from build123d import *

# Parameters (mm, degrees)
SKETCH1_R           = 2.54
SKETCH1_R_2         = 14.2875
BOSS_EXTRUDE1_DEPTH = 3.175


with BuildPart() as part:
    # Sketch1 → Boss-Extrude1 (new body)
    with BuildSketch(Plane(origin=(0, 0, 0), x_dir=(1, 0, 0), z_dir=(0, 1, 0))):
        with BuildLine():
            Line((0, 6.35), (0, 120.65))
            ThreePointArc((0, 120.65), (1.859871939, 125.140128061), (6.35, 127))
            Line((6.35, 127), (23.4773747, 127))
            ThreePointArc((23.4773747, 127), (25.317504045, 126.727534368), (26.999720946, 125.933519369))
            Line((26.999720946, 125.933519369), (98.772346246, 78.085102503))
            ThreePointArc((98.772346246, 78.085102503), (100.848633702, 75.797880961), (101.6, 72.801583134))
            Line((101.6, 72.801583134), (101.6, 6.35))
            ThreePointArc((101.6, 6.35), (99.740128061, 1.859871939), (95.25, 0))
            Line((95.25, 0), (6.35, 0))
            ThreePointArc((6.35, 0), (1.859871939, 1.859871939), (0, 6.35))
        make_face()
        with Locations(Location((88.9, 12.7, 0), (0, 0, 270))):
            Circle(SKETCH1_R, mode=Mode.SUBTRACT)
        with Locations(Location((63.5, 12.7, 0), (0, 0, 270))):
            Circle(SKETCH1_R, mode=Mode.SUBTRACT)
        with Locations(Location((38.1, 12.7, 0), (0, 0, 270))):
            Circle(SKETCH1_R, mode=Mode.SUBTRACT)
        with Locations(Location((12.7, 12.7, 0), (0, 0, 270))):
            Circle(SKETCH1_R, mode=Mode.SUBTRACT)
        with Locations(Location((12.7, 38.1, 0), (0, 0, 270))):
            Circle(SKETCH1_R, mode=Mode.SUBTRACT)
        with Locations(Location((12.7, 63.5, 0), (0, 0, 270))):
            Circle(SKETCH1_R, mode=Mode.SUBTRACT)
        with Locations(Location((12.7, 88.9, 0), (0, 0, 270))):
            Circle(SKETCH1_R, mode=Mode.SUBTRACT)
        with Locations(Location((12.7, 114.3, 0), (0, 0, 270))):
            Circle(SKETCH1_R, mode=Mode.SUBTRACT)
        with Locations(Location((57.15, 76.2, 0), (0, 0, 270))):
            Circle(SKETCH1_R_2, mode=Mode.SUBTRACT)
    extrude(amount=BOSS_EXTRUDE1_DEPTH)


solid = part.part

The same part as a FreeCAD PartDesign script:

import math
import FreeCAD as App
import Part
import Sketcher

V = App.Vector
Q = App.Units.Quantity

doc = App.newDocument("Part")
body = doc.addObject("PartDesign::Body", "Body")

sketch1 = body.newObject("Sketcher::SketchObject", "Sketch")
sketch1.AttachmentSupport = (doc.getObject("XZ_Plane"), [""])
sketch1.MapMode = "FlatFace"
sketch1.addGeometry([
    Part.LineSegment(V(0, -120.7, 0), V(0, -6.3, 0)),
    Part.ArcOfCircle(Part.Circle(V(6.3, -6.3, 0), V(0, 0, 1), 6.3), math.radians(90), math.radians(180)),
    Part.LineSegment(V(6.3, 0, 0), V(95.2, 0, 0)),
    Part.ArcOfCircle(Part.Circle(V(95.3, -6.3, 0), V(0, 0, 1), 6.3), math.radians(0), math.radians(90)),
    Part.LineSegment(V(101.6, -6.3, 0), V(101.6, -72.8, 0)),
    Part.ArcOfCircle(Part.Circle(V(95.2, -72.8, 0), V(0, 0, 1), 6.4), math.radians(-56), math.radians(0)),
    Part.LineSegment(V(98.8, -78.1, 0), V(27, -125.9, 0)),
    Part.ArcOfCircle(Part.Circle(V(23.5, -120.7, 0), V(0, 0, 1), 6.3), math.radians(-90), math.radians(-56)),
    Part.LineSegment(V(23.5, -127, 0), V(6.3, -127, 0)),
    Part.ArcOfCircle(Part.Circle(V(6.3, -120.7, 0), V(0, 0, 1), 6.3), math.radians(180), math.radians(270)),
    Part.Circle(V(88.9, -12.7, 0), V(0, 0, 1), 2.5),
    Part.Circle(V(63.5, -12.7, 0), V(0, 0, 1), 2.5),
    Part.Circle(V(38.1, -12.7, 0), V(0, 0, 1), 2.5),
    Part.Circle(V(12.7, -12.7, 0), V(0, 0, 1), 2.5),
    Part.Circle(V(12.7, -38.1, 0), V(0, 0, 1), 2.5),
    Part.Circle(V(12.7, -63.5, 0), V(0, 0, 1), 2.5),
    Part.Circle(V(57.1, -76.2, 0), V(0, 0, 1), 14.3),
    Part.Circle(V(12.7, -88.9, 0), V(0, 0, 1), 2.5),
    Part.Circle(V(12.7, -114.3, 0), V(0, 0, 1), 2.5),
], False)
sketch1.addConstraint([
    Sketcher.Constraint("Tangent", 0, 2, 1, 2),
    Sketcher.Constraint("Tangent", 1, 1, 2, 1),
    Sketcher.Constraint("Tangent", 2, 2, 3, 2),
    Sketcher.Constraint("Tangent", 3, 1, 4, 1),
    Sketcher.Constraint("Tangent", 4, 2, 5, 2),
    Sketcher.Constraint("Tangent", 5, 1, 6, 1),
    Sketcher.Constraint("Tangent", 6, 2, 7, 2),
    Sketcher.Constraint("Tangent", 7, 1, 8, 1),
    Sketcher.Constraint("Tangent", 8, 2, 9, 2),
    Sketcher.Constraint("Tangent", 9, 1, 0, 1),
    Sketcher.Constraint("Vertical", 0),
    Sketcher.Constraint("Horizontal", 2),
    Sketcher.Constraint("Vertical", 4),
    Sketcher.Constraint("Horizontal", 8),
    Sketcher.Constraint("Equal", 1, 3),
    Sketcher.Constraint("Equal", 3, 5),
    Sketcher.Constraint("Equal", 5, 7),
    Sketcher.Constraint("Equal", 7, 9),
    Sketcher.Constraint("Equal", 10, 11),
    Sketcher.Constraint("Equal", 11, 12),
    Sketcher.Constraint("Equal", 12, 13),
    Sketcher.Constraint("Equal", 13, 14),
    Sketcher.Constraint("Equal", 14, 15),
    Sketcher.Constraint("Equal", 15, 17),
    Sketcher.Constraint("Equal", 17, 18),
    Sketcher.Constraint("PointOnObject", 0, 2, -2),
    Sketcher.Constraint("PointOnObject", 1, 1, -1),
    Sketcher.Constraint("Horizontal", 10, 3, 11, 3),
    Sketcher.Constraint("Horizontal", 11, 3, 12, 3),
    Sketcher.Constraint("Horizontal", 12, 3, 13, 3),
    Sketcher.Constraint("Vertical", 13, 3, 14, 3),
    Sketcher.Constraint("Vertical", 14, 3, 15, 3),
    Sketcher.Constraint("Vertical", 15, 3, 17, 3),
    Sketcher.Constraint("Vertical", 17, 3, 18, 3),
    Sketcher.Constraint("Diameter", 10, Q("0.2 in")),
    Sketcher.Constraint("Radius", 1, Q("0.25 in")),
    Sketcher.Constraint("Diameter", 16, Q("1.125 in")),
    Sketcher.Constraint("DistanceX", 2, 1, 2, 2, Q("3.5 in")),
    Sketcher.Constraint("DistanceY", 0, 1, 0, 2, Q("4.5 in")),
    Sketcher.Constraint("DistanceY", 16, 3, -1, 1, Q("3 in")),
    Sketcher.Constraint("DistanceX", 11, 3, 10, 3, Q("1 in")),
    Sketcher.Constraint("DistanceX", 12, 3, 11, 3, Q("1 in")),
    Sketcher.Constraint("DistanceX", 13, 3, 12, 3, Q("1 in")),
    Sketcher.Constraint("DistanceY", 14, 3, 13, 3, Q("1 in")),
    Sketcher.Constraint("DistanceY", 15, 3, 14, 3, Q("1 in")),
    Sketcher.Constraint("DistanceY", 17, 3, 15, 3, Q("1 in")),
    Sketcher.Constraint("DistanceY", 18, 3, 17, 3, Q("1 in")),
    Sketcher.Constraint("DistanceX", -1, 1, 10, 3, Q("3.5 in")),
    Sketcher.Constraint("DistanceY", 10, 3, -1, 1, Q("0.5 in")),
    Sketcher.Constraint("DistanceX", 16, 3, 5, 3, Q("1.5 in")),
    Sketcher.Constraint("Distance", 6, Q("86.25996 mm")),
    Sketcher.Constraint("DistanceX", 8, 2, 8, 1, Q("17.127375 mm")),
])
pad1 = body.newObject("PartDesign::Pad", "Pad")
pad1.Profile = sketch1
pad1.Length = Q("0.125 in")
pad1.Reversed = True

doc.recompute()
